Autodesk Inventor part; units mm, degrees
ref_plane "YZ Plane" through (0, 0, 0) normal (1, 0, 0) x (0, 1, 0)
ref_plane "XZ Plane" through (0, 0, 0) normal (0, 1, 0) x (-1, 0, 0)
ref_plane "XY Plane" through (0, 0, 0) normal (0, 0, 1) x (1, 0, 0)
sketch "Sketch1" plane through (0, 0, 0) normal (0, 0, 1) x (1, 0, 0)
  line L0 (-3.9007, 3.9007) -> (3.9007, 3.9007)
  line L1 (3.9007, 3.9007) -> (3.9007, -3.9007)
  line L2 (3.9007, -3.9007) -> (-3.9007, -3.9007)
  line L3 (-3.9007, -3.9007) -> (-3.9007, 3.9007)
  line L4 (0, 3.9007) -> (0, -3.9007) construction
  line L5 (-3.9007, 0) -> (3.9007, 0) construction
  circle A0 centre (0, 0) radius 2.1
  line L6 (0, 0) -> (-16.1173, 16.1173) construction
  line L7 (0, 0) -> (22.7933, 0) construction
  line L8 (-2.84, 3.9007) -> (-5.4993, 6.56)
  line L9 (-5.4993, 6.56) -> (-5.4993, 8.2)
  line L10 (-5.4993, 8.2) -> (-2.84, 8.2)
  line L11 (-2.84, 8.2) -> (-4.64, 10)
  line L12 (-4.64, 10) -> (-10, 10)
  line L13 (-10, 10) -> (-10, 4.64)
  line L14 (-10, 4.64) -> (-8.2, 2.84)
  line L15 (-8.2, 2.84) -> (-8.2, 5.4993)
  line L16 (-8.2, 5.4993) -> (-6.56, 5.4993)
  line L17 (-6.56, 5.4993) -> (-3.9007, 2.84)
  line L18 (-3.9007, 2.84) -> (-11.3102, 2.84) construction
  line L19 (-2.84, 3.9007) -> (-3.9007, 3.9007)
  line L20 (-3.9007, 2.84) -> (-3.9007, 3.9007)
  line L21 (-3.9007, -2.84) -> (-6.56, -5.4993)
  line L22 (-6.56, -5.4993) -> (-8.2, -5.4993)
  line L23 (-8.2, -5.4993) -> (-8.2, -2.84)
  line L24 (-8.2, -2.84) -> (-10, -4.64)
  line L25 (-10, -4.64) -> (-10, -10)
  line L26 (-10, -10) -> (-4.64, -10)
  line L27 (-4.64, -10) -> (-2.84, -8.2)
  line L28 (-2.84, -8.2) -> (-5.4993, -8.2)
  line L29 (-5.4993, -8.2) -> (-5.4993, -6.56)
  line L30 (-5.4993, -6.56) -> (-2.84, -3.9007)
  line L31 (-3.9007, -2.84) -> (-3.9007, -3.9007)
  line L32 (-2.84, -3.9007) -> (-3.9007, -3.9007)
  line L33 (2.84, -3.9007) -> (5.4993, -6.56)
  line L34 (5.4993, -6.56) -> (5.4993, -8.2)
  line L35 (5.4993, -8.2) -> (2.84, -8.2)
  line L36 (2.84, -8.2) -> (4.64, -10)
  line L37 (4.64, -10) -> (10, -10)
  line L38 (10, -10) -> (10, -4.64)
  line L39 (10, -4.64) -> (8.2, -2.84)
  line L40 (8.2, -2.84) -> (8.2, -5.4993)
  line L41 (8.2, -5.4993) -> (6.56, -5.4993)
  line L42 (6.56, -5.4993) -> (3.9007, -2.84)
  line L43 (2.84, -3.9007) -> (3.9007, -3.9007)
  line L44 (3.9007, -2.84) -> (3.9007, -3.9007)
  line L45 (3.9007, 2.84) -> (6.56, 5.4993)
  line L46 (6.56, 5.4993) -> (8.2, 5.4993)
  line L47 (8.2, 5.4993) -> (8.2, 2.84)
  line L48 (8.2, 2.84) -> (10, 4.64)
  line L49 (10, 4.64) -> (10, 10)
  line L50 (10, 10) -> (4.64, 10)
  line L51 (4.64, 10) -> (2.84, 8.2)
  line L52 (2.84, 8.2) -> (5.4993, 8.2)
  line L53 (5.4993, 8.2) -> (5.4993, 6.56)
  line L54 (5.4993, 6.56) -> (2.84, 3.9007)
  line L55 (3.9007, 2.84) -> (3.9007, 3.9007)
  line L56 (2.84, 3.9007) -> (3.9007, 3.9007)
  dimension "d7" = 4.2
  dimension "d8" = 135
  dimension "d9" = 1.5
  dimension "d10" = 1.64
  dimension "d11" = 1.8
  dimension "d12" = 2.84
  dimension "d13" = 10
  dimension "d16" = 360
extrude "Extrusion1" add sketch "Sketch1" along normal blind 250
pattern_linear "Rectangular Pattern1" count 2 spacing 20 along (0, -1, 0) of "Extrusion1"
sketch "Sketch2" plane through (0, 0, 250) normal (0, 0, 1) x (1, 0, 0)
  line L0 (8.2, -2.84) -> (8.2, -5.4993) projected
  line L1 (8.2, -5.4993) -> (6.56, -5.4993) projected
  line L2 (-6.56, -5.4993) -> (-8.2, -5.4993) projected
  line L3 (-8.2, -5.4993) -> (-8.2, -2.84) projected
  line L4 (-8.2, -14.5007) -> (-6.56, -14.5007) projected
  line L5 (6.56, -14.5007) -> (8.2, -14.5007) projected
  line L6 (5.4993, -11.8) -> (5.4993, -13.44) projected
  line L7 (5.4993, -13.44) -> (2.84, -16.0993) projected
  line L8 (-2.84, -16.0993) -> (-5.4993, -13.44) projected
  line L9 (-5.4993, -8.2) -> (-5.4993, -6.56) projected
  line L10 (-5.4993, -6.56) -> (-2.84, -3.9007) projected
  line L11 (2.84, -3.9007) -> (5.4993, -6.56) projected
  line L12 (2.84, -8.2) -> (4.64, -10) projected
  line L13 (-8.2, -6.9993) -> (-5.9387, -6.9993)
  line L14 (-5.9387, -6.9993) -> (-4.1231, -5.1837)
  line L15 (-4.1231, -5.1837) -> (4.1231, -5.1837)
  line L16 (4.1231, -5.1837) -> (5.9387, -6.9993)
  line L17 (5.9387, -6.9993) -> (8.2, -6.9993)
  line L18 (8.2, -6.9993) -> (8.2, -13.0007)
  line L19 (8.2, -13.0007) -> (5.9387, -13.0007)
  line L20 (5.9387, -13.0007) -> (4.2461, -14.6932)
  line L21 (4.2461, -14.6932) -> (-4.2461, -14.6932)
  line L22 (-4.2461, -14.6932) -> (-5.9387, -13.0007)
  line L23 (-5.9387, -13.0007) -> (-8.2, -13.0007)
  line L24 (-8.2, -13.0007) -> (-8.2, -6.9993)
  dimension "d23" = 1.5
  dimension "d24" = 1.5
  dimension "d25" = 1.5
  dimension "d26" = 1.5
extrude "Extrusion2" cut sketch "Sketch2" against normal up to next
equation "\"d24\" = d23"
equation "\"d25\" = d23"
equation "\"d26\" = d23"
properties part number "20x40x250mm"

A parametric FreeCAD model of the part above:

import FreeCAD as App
import Part
import Sketcher
from FreeCAD import Vector

doc = App.newDocument("Part")
body = doc.addObject("PartDesign::Body", "Body")

# Sketch on XY plane
sketch1 = body.newObject("Sketcher::SketchObject", "Sketch")
sketch1.AttachmentSupport = (doc.getObject("XY_Plane"), [""])
sketch1.MapMode = "FlatFace"
sketch1.addGeometry([
    Part.LineSegment(Vector(-6.6, 5.5, 0), Vector(-3.9, 2.8, 0)),  # 0
    Part.LineSegment(Vector(-3.9, 2.8, 0), Vector(-3.9, -2.8, 0)),  # 1
    Part.LineSegment(Vector(-3.9, -2.8, 0), Vector(-6.6, -5.5, 0)),  # 2
    Part.LineSegment(Vector(-6.6, -5.5, 0), Vector(-8.2, -5.5, 0)),  # 3
    Part.LineSegment(Vector(-8.2, -5.5, 0), Vector(-8.2, -2.8, 0)),  # 4
    Part.LineSegment(Vector(-8.2, -2.8, 0), Vector(-10, -4.6, 0)),  # 5
    Part.LineSegment(Vector(-10, -4.6, 0), Vector(-10, -10, 0)),  # 6
    Part.LineSegment(Vector(-10, -10, 0), Vector(-4.6, -10, 0)),  # 7
    Part.LineSegment(Vector(-4.6, -10, 0), Vector(-2.8, -8.2, 0)),  # 8
    Part.LineSegment(Vector(-2.8, -8.2, 0), Vector(-5.5, -8.2, 0)),  # 9
    Part.LineSegment(Vector(-5.5, -8.2, 0), Vector(-5.5, -6.6, 0)),  # 10
    Part.LineSegment(Vector(-5.5, -6.6, 0), Vector(-2.8, -3.9, 0)),  # 11
    Part.LineSegment(Vector(-2.8, -3.9, 0), Vector(2.8, -3.9, 0)),  # 12
    Part.LineSegment(Vector(2.8, -3.9, 0), Vector(5.5, -6.6, 0)),  # 13
    Part.LineSegment(Vector(5.5, -6.6, 0), Vector(5.5, -8.2, 0)),  # 14
    Part.LineSegment(Vector(5.5, -8.2, 0), Vector(2.8, -8.2, 0)),  # 15
    Part.LineSegment(Vector(2.8, -8.2, 0), Vector(4.6, -10, 0)),  # 16
    Part.LineSegment(Vector(4.6, -10, 0), Vector(10, -10, 0)),  # 17
    Part.LineSegment(Vector(10, -10, 0), Vector(10, -4.6, 0)),  # 18
    Part.LineSegment(Vector(10, -4.6, 0), Vector(8.2, -2.8, 0)),  # 19
    Part.LineSegment(Vector(8.2, -2.8, 0), Vector(8.2, -5.5, 0)),  # 20
    Part.LineSegment(Vector(8.2, -5.5, 0), Vector(6.6, -5.5, 0)),  # 21
    Part.LineSegment(Vector(6.6, -5.5, 0), Vector(3.9, -2.8, 0)),  # 22
    Part.LineSegment(Vector(3.9, -2.8, 0), Vector(3.9, 2.8, 0)),  # 23
    Part.LineSegment(Vector(3.9, 2.8, 0), Vector(6.6, 5.5, 0)),  # 24
    Part.LineSegment(Vector(6.6, 5.5, 0), Vector(8.2, 5.5, 0)),  # 25
    Part.LineSegment(Vector(8.2, 5.5, 0), Vector(8.2, 2.8, 0)),  # 26
    Part.LineSegment(Vector(8.2, 2.8, 0), Vector(10, 4.6, 0)),  # 27
    Part.LineSegment(Vector(10, 4.6, 0), Vector(10, 10, 0)),  # 28
    Part.LineSegment(Vector(10, 10, 0), Vector(4.6, 10, 0)),  # 29
    Part.LineSegment(Vector(4.6, 10, 0), Vector(2.8, 8.2, 0)),  # 30
    Part.LineSegment(Vector(2.8, 8.2, 0), Vector(5.5, 8.2, 0)),  # 31
    Part.LineSegment(Vector(5.5, 8.2, 0), Vector(5.5, 6.6, 0)),  # 32
    Part.LineSegment(Vector(5.5, 6.6, 0), Vector(2.8, 3.9, 0)),  # 33
    Part.LineSegment(Vector(2.8, 3.9, 0), Vector(-2.8, 3.9, 0)),  # 34
    Part.LineSegment(Vector(-2.8, 3.9, 0), Vector(-5.5, 6.6, 0)),  # 35
    Part.LineSegment(Vector(-5.5, 6.6, 0), Vector(-5.5, 8.2, 0)),  # 36
    Part.LineSegment(Vector(-5.5, 8.2, 0), Vector(-2.8, 8.2, 0)),  # 37
    Part.LineSegment(Vector(-2.8, 8.2, 0), Vector(-4.6, 10, 0)),  # 38
    Part.LineSegment(Vector(-4.6, 10, 0), Vector(-10, 10, 0)),  # 39
    Part.LineSegment(Vector(-10, 10, 0), Vector(-10, 4.6, 0)),  # 40
    Part.LineSegment(Vector(-10, 4.6, 0), Vector(-8.2, 2.8, 0)),  # 41
    Part.LineSegment(Vector(-8.2, 2.8, 0), Vector(-8.2, 5.5, 0)),  # 42
    Part.LineSegment(Vector(-8.2, 5.5, 0), Vector(-6.6, 5.5, 0)),  # 43
    Part.Circle(Vector(0, 0, 0), Vector(0, 0, 1), 2.1),  # 44
], False)
sketch1.addConstraint([
    Sketcher.Constraint("Coincident", 0, 2, 1, 1),
    Sketcher.Constraint("Coincident", 1, 2, 2, 1),
    Sketcher.Constraint("Coincident", 2, 2, 3, 1),
    Sketcher.Constraint("Coincident", 3, 2, 4, 1),
    Sketcher.Constraint("Coincident", 4, 2, 5, 1),
    Sketcher.Constraint("Coincident", 5, 2, 6, 1),
    Sketcher.Constraint("Coincident", 6, 2, 7, 1),
    Sketcher.Constraint("Coincident", 7, 2, 8, 1),
    Sketcher.Constraint("Coincident", 8, 2, 9, 1),
    Sketcher.Constraint("Coincident", 9, 2, 10, 1),
    Sketcher.Constraint("Coincident", 10, 2, 11, 1),
    Sketcher.Constraint("Coincident", 11, 2, 12, 1),
    Sketcher.Constraint("Coincident", 12, 2, 13, 1),
    Sketcher.Constraint("Coincident", 13, 2, 14, 1),
    Sketcher.Constraint("Coincident", 14, 2, 15, 1),
    Sketcher.Constraint("Coincident", 15, 2, 16, 1),
    Sketcher.Constraint("Coincident", 16, 2, 17, 1),
    Sketcher.Constraint("Coincident", 17, 2, 18, 1),
    Sketcher.Constraint("Coincident", 18, 2, 19, 1),
    Sketcher.Constraint("Coincident", 19, 2, 20, 1),
    Sketcher.Constraint("Coincident", 20, 2, 21, 1),
    Sketcher.Constraint("Coincident", 21, 2, 22, 1),
    Sketcher.Constraint("Coincident", 22, 2, 23, 1),
    Sketcher.Constraint("Coincident", 23, 2, 24, 1),
    Sketcher.Constraint("Coincident", 24, 2, 25, 1),
    Sketcher.Constraint("Coincident", 25, 2, 26, 1),
    Sketcher.Constraint("Coincident", 26, 2, 27, 1),
    Sketcher.Constraint("Coincident", 27, 2, 28, 1),
    Sketcher.Constraint("Coincident", 28, 2, 29, 1),
    Sketcher.Constraint("Coincident", 29, 2, 30, 1),
    Sketcher.Constraint("Coincident", 30, 2, 31, 1),
    Sketcher.Constraint("Coincident", 31, 2, 32, 1),
    Sketcher.Constraint("Coincident", 32, 2, 33, 1),
    Sketcher.Constraint("Coincident", 33, 2, 34, 1),
    Sketcher.Constraint("Coincident", 34, 2, 35, 1),
    Sketcher.Constraint("Coincident", 35, 2, 36, 1),
    Sketcher.Constraint("Coincident", 36, 2, 37, 1),
    Sketcher.Constraint("Coincident", 37, 2, 38, 1),
    Sketcher.Constraint("Coincident", 38, 2, 39, 1),
    Sketcher.Constraint("Coincident", 39, 2, 40, 1),
    Sketcher.Constraint("Coincident", 40, 2, 41, 1),
    Sketcher.Constraint("Coincident", 41, 2, 42, 1),
    Sketcher.Constraint("Coincident", 42, 2, 43, 1),
    Sketcher.Constraint("Coincident", 43, 2, 0, 1),
    Sketcher.Constraint("Vertical", 1),
    Sketcher.Constraint("Horizontal", 3),
    Sketcher.Constraint("Vertical", 4),
    Sketcher.Constraint("Vertical", 6),
    Sketcher.Constraint("Horizontal", 7),
    Sketcher.Constraint("Horizontal", 9),
    Sketcher.Constraint("Vertical", 10),
    Sketcher.Constraint("Horizontal", 12),
    Sketcher.Constraint("Vertical", 14),
    Sketcher.Constraint("Horizontal", 15),
    Sketcher.Constraint("Horizontal", 17),
    Sketcher.Constraint("Vertical", 18),
    Sketcher.Constraint("Vertical", 20),
    Sketcher.Constraint("Horizontal", 21),
    Sketcher.Constraint("Vertical", 23),
    Sketcher.Constraint("Horizontal", 25),
    Sketcher.Constraint("Vertical", 26),
    Sketcher.Constraint("Vertical", 28),
    Sketcher.Constraint("Horizontal", 29),
    Sketcher.Constraint("Horizontal", 31),
    Sketcher.Constraint("Vertical", 32),
    Sketcher.Constraint("Horizontal", 34),
    Sketcher.Constraint("Vertical", 36),
    Sketcher.Constraint("Horizontal", 37),
    Sketcher.Constraint("Horizontal", 39),
    Sketcher.Constraint("Vertical", 40),
    Sketcher.Constraint("Vertical", 42),
    Sketcher.Constraint("Horizontal", 43),
    Sketcher.Constraint("Coincident", 44, 3, -1, 1),
    Sketcher.Constraint("Symmetric", 0, 2, 22, 2, -1, 1),
    Sketcher.Constraint("Symmetric", 2, 2, 24, 2, -1, 1),
    Sketcher.Constraint("Symmetric", 4, 2, 26, 2, -1, 1),
    Sketcher.Constraint("Symmetric", 5, 2, 27, 2, -1, 1),
    Sketcher.Constraint("Symmetric", 7, 2, 29, 2, -1, 1),
    Sketcher.Constraint("Symmetric", 8, 2, 30, 2, -1, 1),
    Sketcher.Constraint("Symmetric", 10, 2, 32, 2, -1, 1),
    Sketcher.Constraint("Symmetric", 11, 2, 33, 2, -1, 1),
    Sketcher.Constraint("Symmetric", 13, 2, 35, 2, -1, 1),
    Sketcher.Constraint("Symmetric", 15, 2, 37, 2, -1, 1),
    Sketcher.Constraint("Symmetric", 16, 2, 38, 2, -1, 1),
    Sketcher.Constraint("Symmetric", 18, 2, 40, 2, -1, 1),
    Sketcher.Constraint("Symmetric", 19, 2, 41, 2, -1, 1),
    Sketcher.Constraint("Symmetric", 21, 2, 43, 2, -1, 1),
    Sketcher.Constraint("Symmetric", 10, 2, 13, 2, -2),
    Sketcher.Constraint("Symmetric", 8, 2, 15, 2, -2),
    Sketcher.Constraint("Symmetric", 7, 2, 16, 2, -2),
    Sketcher.Constraint("Symmetric", 5, 2, 18, 2, -2),
    Sketcher.Constraint("Symmetric", 4, 2, 19, 2, -2),
    Sketcher.Constraint("Symmetric", 2, 2, 21, 2, -2),
    Sketcher.Constraint("Perpendicular", 0, 2),
    Sketcher.Constraint("Parallel", 2, 5),
    Sketcher.Constraint("Parallel", 5, 8),
    Sketcher.Constraint("Parallel", 8, 11),
    Sketcher.Constraint("Perpendicular", 11, 13),
    Sketcher.Constraint("Parallel", 13, 16),
    Sketcher.Constraint("Perpendicular", 22, 24),
    Sketcher.Constraint("Perpendicular", 33, 35),
    Sketcher.Constraint("Horizontal", 1, 2, 4, 2),
    Sketcher.Constraint("Vertical", 8, 2, 11, 2),
    Sketcher.Constraint("Equal", 34, 1),
    Sketcher.Constraint("Equal", 37, 4),
    Sketcher.Constraint("Equal", 39, 6),
    Sketcher.Constraint("Equal", 43, 10),
    Sketcher.Constraint("Equal", 5, 8),
    Sketcher.Constraint("Diameter", 44, 4.2),
    Sketcher.Constraint("DistanceX", 5, 2, -1, 1, 10.0),
    Sketcher.Constraint("DistanceX", 3, 2, 3, 1, 1.64),
    Sketcher.Constraint("DistanceX", 5, 2, 3, 2, 1.8),
    Sketcher.Constraint("DistanceY", -1, 1, 0, 2, 2.84),
    Sketcher.Constraint("DistanceX", 9, 2, 9, 1, 2.6593),
])
pad1 = body.newObject("PartDesign::Pad", "Pad")
pad1.Profile = sketch1
pad1.Length = 250
doc.recompute()

linearpattern = body.newObject("PartDesign::LinearPattern", "LinearPattern")
linearpattern.Originals = [pad1]
linearpattern.Direction = (doc.getObject("Y_Axis"), [""])
linearpattern.Mode = "offset"
linearpattern.Offset = 20
linearpattern.Occurrences = 2
linearpattern.Reversed = True
body.Tip = linearpattern

# Sketch on XY plane
sketch2 = body.newObject("Sketcher::SketchObject", "Sketch001")
sketch2.AttachmentSupport = (doc.getObject("XY_Plane"), [""])
sketch2.MapMode = "FlatFace"
sketch2.AttachmentOffset = App.Placement(Vector(0, 0, 250), App.Rotation())
sketch2.addGeometry([
    Part.LineSegment(Vector(4.2, -14.7, 0), Vector(5.5, -13.4, 0)),  # 0
    Part.LineSegment(Vector(5.5, -13.4, 0), Vector(5.9, -13, 0)),  # 1
    Part.LineSegment(Vector(5.9, -13, 0), Vector(8.2, -13, 0)),  # 2
    Part.LineSegment(Vector(8.2, -13, 0), Vector(8.2, -7, 0)),  # 3
    Part.LineSegment(Vector(8.2, -7, 0), Vector(5.9, -7, 0)),  # 4
    Part.LineSegment(Vector(5.9, -7, 0), Vector(5.5, -6.6, 0)),  # 5
    Part.LineSegment(Vector(5.5, -6.6, 0), Vector(4.1, -5.2, 0)),  # 6
    Part.LineSegment(Vector(4.1, -5.2, 0), Vector(-4.1, -5.2, 0)),  # 7
    Part.LineSegment(Vector(-4.1, -5.2, 0), Vector(-5.5, -6.6, 0)),  # 8
    Part.LineSegment(Vector(-5.5, -6.6, 0), Vector(-5.9, -7, 0)),  # 9
    Part.LineSegment(Vector(-5.9, -7, 0), Vector(-8.2, -7, 0)),  # 10
    Part.LineSegment(Vector(-8.2, -7, 0), Vector(-8.2, -13, 0)),  # 11
    Part.LineSegment(Vector(-8.2, -13, 0), Vector(-5.9, -13, 0)),  # 12
    Part.LineSegment(Vector(-5.9, -13, 0), Vector(-5.5, -13.4, 0)),  # 13
    Part.LineSegment(Vector(-5.5, -13.4, 0), Vector(-4.2, -14.7, 0)),  # 14
    Part.LineSegment(Vector(-4.2, -14.7, 0), Vector(4.2, -14.7, 0)),  # 15
], False)
sketch2.addConstraint([
    Sketcher.Constraint("Coincident", 0, 2, 1, 1),
    Sketcher.Constraint("Coincident", 1, 2, 2, 1),
    Sketcher.Constraint("Coincident", 2, 2, 3, 1),
    Sketcher.Constraint("Coincident", 3, 2, 4, 1),
    Sketcher.Constraint("Coincident", 4, 2, 5, 1),
    Sketcher.Constraint("Coincident", 5, 2, 6, 1),
    Sketcher.Constraint("Coincident", 6, 2, 7, 1),
    Sketcher.Constraint("Coincident", 7, 2, 8, 1),
    Sketcher.Constraint("Coincident", 8, 2, 9, 1),
    Sketcher.Constraint("Coincident", 9, 2, 10, 1),
    Sketcher.Constraint("Coincident", 10, 2, 11, 1),
    Sketcher.Constraint("Coincident", 11, 2, 12, 1),
    Sketcher.Constraint("Coincident", 12, 2, 13, 1),
    Sketcher.Constraint("Coincident", 13, 2, 14, 1),
    Sketcher.Constraint("Coincident", 14, 2, 15, 1),
    Sketcher.Constraint("Coincident", 15, 2, 0, 1),
    Sketcher.Constraint("Horizontal", 2),
    Sketcher.Constraint("Vertical", 3),
    Sketcher.Constraint("Horizontal", 4),
    Sketcher.Constraint("Horizontal", 7),
    Sketcher.Constraint("Horizontal", 10),
    Sketcher.Constraint("Vertical", 11),
    Sketcher.Constraint("Horizontal", 12),
    Sketcher.Constraint("Horizontal", 15),
    Sketcher.Constraint("Symmetric", 5, 2, 8, 2, -2),
    Sketcher.Constraint("Symmetric", 4, 2, 9, 2, -2),
    Sketcher.Constraint("Symmetric", 2, 2, 11, 2, -2),
    Sketcher.Constraint("Symmetric", 0, 2, 13, 2, -2),
    Sketcher.Constraint("Parallel", 0, 1),
    Sketcher.Constraint("Perpendicular", 1, 5),
    Sketcher.Constraint("Parallel", 5, 6),
    Sketcher.Constraint("Perpendicular", 6, 8),
    Sketcher.Constraint("Parallel", 8, 9),
    Sketcher.Constraint("Perpendicular", 9, 13),
    Sketcher.Constraint("Parallel", 13, 14),
    Sketcher.Constraint("Vertical", 1, 2, 4, 2),
    Sketcher.Constraint("Vertical", 0, 2, 5, 2),
    Sketcher.Constraint("DistanceX", -1, 1, 2, 2, 8.2),
    Sketcher.Constraint("DistanceY", 0, 2, -1, 1, 13.44),
    Sketcher.Constraint("DistanceY", 5, 2, -1, 1, 6.56),
    Sketcher.Constraint("DistanceX", 2, 1, 2, 2, 2.2613),
    Sketcher.Constraint("DistanceX", 7, 2, 7, 1, 8.2462),
    Sketcher.Constraint("DistanceX", 15, 1, 15, 2, 8.4922),
    Sketcher.Constraint("DistanceY", 3, 1, 3, 2, 6.0014),
])
pocket1 = body.newObject("PartDesign::Pocket", "Pocket")
pocket1.Profile = sketch2
pocket1.Length = 250

doc.recompute()
